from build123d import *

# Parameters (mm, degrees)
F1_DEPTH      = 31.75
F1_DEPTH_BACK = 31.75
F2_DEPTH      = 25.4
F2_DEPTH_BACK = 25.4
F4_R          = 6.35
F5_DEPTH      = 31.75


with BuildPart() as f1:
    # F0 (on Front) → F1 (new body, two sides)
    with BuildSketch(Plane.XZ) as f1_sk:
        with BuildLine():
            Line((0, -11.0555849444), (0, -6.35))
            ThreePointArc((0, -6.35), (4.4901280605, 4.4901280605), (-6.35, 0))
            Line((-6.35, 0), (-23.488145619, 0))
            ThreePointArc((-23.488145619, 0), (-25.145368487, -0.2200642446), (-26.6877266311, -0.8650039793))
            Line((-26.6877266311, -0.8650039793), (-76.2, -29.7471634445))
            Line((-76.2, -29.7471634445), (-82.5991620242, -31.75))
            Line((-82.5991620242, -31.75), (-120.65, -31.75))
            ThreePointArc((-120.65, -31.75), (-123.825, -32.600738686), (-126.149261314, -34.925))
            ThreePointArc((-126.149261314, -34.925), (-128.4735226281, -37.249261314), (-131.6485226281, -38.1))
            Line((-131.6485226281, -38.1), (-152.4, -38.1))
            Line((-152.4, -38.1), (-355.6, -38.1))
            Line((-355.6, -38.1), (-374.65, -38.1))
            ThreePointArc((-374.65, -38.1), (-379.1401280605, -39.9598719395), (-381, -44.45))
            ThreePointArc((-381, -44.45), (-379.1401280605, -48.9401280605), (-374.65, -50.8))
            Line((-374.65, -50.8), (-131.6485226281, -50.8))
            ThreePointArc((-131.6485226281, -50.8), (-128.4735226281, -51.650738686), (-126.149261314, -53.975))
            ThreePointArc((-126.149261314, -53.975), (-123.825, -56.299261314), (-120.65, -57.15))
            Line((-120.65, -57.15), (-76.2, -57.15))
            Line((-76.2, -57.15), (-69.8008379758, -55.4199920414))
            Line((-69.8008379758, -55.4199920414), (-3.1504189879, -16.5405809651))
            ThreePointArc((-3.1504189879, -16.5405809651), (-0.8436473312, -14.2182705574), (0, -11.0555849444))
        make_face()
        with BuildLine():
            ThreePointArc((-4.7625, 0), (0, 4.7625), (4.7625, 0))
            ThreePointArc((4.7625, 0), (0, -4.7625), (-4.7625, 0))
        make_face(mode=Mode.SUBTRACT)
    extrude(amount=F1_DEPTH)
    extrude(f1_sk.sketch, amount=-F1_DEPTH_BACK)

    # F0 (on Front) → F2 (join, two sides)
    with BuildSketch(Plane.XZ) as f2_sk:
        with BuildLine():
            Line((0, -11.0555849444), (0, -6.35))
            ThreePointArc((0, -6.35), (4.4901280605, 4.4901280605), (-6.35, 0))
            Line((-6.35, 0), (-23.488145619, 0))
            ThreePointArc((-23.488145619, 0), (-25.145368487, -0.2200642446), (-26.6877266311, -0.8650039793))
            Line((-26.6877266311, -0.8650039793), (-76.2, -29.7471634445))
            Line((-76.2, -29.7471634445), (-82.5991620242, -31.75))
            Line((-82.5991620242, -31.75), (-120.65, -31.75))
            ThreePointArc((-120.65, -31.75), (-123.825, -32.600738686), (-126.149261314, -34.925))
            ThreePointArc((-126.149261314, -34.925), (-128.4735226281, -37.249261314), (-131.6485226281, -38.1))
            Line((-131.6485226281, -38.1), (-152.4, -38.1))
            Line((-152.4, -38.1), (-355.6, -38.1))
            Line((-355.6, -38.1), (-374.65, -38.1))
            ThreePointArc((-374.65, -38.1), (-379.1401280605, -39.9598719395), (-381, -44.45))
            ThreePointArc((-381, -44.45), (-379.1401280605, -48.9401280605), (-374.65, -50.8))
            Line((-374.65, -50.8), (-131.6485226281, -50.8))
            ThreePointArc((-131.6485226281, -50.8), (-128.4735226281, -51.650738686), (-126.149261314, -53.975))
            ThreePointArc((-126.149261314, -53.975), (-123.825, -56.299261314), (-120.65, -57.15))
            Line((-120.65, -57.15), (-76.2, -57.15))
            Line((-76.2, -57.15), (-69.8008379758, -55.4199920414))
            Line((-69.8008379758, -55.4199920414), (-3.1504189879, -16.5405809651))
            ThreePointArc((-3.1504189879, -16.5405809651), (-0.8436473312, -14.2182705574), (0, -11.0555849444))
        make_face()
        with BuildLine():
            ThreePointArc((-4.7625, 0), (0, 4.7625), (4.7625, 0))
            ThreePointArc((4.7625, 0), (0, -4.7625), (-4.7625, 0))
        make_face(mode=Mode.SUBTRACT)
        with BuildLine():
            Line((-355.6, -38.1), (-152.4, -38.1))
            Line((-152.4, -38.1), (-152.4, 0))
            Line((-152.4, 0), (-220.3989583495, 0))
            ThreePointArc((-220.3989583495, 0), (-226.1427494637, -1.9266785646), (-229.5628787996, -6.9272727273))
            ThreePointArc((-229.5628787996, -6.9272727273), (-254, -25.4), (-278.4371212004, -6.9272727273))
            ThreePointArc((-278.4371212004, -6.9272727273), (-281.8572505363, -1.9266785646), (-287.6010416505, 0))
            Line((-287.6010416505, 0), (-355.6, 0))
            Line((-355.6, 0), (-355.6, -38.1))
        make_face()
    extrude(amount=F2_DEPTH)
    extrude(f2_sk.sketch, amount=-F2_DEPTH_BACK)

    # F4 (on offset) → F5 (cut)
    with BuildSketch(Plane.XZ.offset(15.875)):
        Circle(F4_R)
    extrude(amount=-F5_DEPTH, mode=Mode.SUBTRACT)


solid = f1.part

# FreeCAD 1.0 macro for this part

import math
import FreeCAD as App
import Part
import Sketcher

V = App.Vector
Q = App.Units.Quantity

doc = App.newDocument("Part")
params = doc.addObject("Spreadsheet::Sheet", "Params")
for row, (alias, value) in enumerate([
    ("sketch1_radius", "0.25 in"),
    ("sketch1_diameter", "0.375 in"),
    ("pad1_length", "1.25 in"),
    ("pad1_length2", "1.25 in"),
    ("sketch2_radius", "1 in"),
    ("sketch2_radius2", "0.25 in"),
    ("sketch2_diameter", "0.375 in"),
    ("sketch2_height", "1.5 in"),
    ("sketch2_radius3", "0.375 in"),
    ("pad2_length", "1 in"),
    ("pad2_length2", "1 in"),
    ("sketch3_diameter", "0.5 in"),
    ("pocket1_length", "1.25 in"),
], start=1):
    params.set(f"A{row}", alias)
    params.set(f"B{row}", "=" + value)
    params.setAlias(f"B{row}", alias)

body = doc.addObject("PartDesign::Body", "Body")

sketch1 = body.newObject("Sketcher::SketchObject", "Sketch")
sketch1.AttachmentSupport = (doc.getObject("XZ_Plane"), [""])
sketch1.MapMode = "FlatFace"
sketch1.addGeometry(Part.LineSegment(V(0, -11.1, 0), V(0, -6.3, 0)), False)
sketch1.addGeometry(Part.ArcOfCircle(Part.Circle(V(0, 0, 0), V(0, 0, 1), 6.3), math.radians(-90), math.radians(180)), False)
sketch1.addGeometry(Part.LineSegment(V(-6.3, 0, 0), V(-23.5, 0, 0)), False)
sketch1.addGeometry(Part.ArcOfCircle(Part.Circle(V(-23.5, -6.4, 0), V(0, 0, 1), 6.4), math.radians(90), math.radians(120)), False)
sketch1.addGeometry(Part.LineSegment(V(-26.7, -0.9, 0), V(-76.2, -29.7, 0)), False)
sketch1.addGeometry(Part.LineSegment(V(-76.2, -29.7, 0), V(-82.6, -31.8, 0)), False)
sketch1.addGeometry(Part.LineSegment(V(-82.6, -31.8, 0), V(-120.7, -31.8, 0)), False)
sketch1.addGeometry(Part.ArcOfCircle(Part.Circle(V(-120.7, -38.1, 0), V(0, 0, 1), 6.3), math.radians(90), math.radians(150)), False)
sketch1.addGeometry(Part.ArcOfCircle(Part.Circle(V(-131.6, -31.8, 0), V(0, 0, 1), 6.3), math.radians(-90), math.radians(-30)), False)
sketch1.addGeometry(Part.LineSegment(V(-131.6, -38.1, 0), V(-374.6, -38.1, 0)), False)
sketch1.addGeometry(Part.ArcOfCircle(Part.Circle(V(-374.6, -44.5, 0), V(0, 0, 1), 6.3), math.radians(90), math.radians(180)), False)
sketch1.addGeometry(Part.ArcOfCircle(Part.Circle(V(-374.6, -44.5, 0), V(0, 0, 1), 6.3), math.radians(180), math.radians(270)), False)
sketch1.addGeometry(Part.LineSegment(V(-374.6, -50.8, 0), V(-131.6, -50.8, 0)), False)
sketch1.addGeometry(Part.ArcOfCircle(Part.Circle(V(-131.6, -57.1, 0), V(0, 0, 1), 6.3), math.radians(30), math.radians(90)), False)
sketch1.addGeometry(Part.ArcOfCircle(Part.Circle(V(-120.7, -50.8, 0), V(0, 0, 1), 6.3), math.radians(-150), math.radians(-90)), False)
sketch1.addGeometry(Part.LineSegment(V(-120.7, -57.1, 0), V(-76.2, -57.1, 0)), False)
sketch1.addGeometry(Part.LineSegment(V(-76.2, -57.1, 0), V(-69.8, -55.4, 0)), False)
sketch1.addGeometry(Part.LineSegment(V(-69.8, -55.4, 0), V(-3.2, -16.5, 0)), False)
sketch1.addGeometry(Part.ArcOfCircle(Part.Circle(V(-6.3, -11.1, 0), V(0, 0, 1), 6.3), math.radians(-60), math.radians(0)), False)
sketch1.addGeometry(Part.Circle(V(0, 0, 0), V(0, 0, 1), 4.8), False)
sketch1.addConstraint(Sketcher.Constraint("Coincident", 0, 2, 1, 1))
sketch1.addConstraint(Sketcher.Constraint("Coincident", 1, 2, 2, 1))
sketch1.addConstraint(Sketcher.Constraint("Tangent", 2, 2, 3, 1))
sketch1.addConstraint(Sketcher.Constraint("Tangent", 3, 2, 4, 1))
sketch1.addConstraint(Sketcher.Constraint("Coincident", 4, 2, 5, 1))
sketch1.addConstraint(Sketcher.Constraint("Coincident", 5, 2, 6, 1))
sketch1.addConstraint(Sketcher.Constraint("Tangent", 6, 2, 7, 1))
sketch1.addConstraint(Sketcher.Constraint("Tangent", 7, 2, 8, 2))
sketch1.addConstraint(Sketcher.Constraint("Tangent", 8, 1, 9, 1))
sketch1.addConstraint(Sketcher.Constraint("Tangent", 9, 2, 10, 1))
sketch1.addConstraint(Sketcher.Constraint("Tangent", 10, 2, 11, 1))
sketch1.addConstraint(Sketcher.Constraint("Tangent", 11, 2, 12, 1))
sketch1.addConstraint(Sketcher.Constraint("Tangent", 12, 2, 13, 2))
sketch1.addConstraint(Sketcher.Constraint("Tangent", 13, 1, 14, 1))
sketch1.addConstraint(Sketcher.Constraint("Tangent", 14, 2, 15, 1))
sketch1.addConstraint(Sketcher.Constraint("Coincident", 15, 2, 16, 1))
sketch1.addConstraint(Sketcher.Constraint("Coincident", 16, 2, 17, 1))
sketch1.addConstraint(Sketcher.Constraint("Tangent", 17, 2, 18, 1))
sketch1.addConstraint(Sketcher.Constraint("Tangent", 18, 2, 0, 1))
sketch1.addConstraint(Sketcher.Constraint("Vertical", 0))
sketch1.addConstraint(Sketcher.Constraint("Horizontal", 2))
sketch1.addConstraint(Sketcher.Constraint("Horizontal", 6))
sketch1.addConstraint(Sketcher.Constraint("Horizontal", 9))
sketch1.addConstraint(Sketcher.Constraint("Horizontal", 12))
sketch1.addConstraint(Sketcher.Constraint("Horizontal", 15))
sketch1.addConstraint(Sketcher.Constraint("Coincident", 1, 3, -1, 1))
sketch1.addConstraint(Sketcher.Constraint("Coincident", 19, 3, -1, 1))
sketch1.addConstraint(Sketcher.Constraint("Equal", 1, 3))
sketch1.addConstraint(Sketcher.Constraint("Equal", 3, 7))
sketch1.addConstraint(Sketcher.Constraint("Equal", 7, 8))
sketch1.addConstraint(Sketcher.Constraint("Equal", 8, 10))
sketch1.addConstraint(Sketcher.Constraint("Equal", 10, 11))
sketch1.addConstraint(Sketcher.Constraint("Equal", 11, 13))
sketch1.addConstraint(Sketcher.Constraint("Equal", 13, 14))
sketch1.addConstraint(Sketcher.Constraint("Equal", 14, 18))
sketch1.addConstraint(Sketcher.Constraint("PointOnObject", 0, 2, -2))
sketch1.addConstraint(Sketcher.Constraint("PointOnObject", 1, 2, -1))
sketch1.addConstraint(Sketcher.Constraint("Parallel", 4, 17))
sketch1.addConstraint(Sketcher.Constraint("Horizontal", 8, 3, 5, 2))
sketch1.addConstraint(Sketcher.Constraint("Horizontal", 11, 3, 10, 2))
sketch1.addConstraint(Sketcher.Constraint("Horizontal", 14, 3, 11, 2))
sketch1.addConstraint(Sketcher.Constraint("Vertical", 8, 3, 13, 3))
sketch1.addConstraint(Sketcher.Constraint("Vertical", 4, 2, 15, 2))
sketch1.addConstraint(Sketcher.Constraint("Radius", 1, Q("0.25 in")))
sketch1.addConstraint(Sketcher.Constraint("Diameter", 19, Q("0.375 in")))
sketch1.addConstraint(Sketcher.Constraint("DistanceY", 14, 3, -1, 1, Q("2 in")))
sketch1.addConstraint(Sketcher.Constraint("DistanceX", 4, 2, -1, 1, Q("3 in")))
sketch1.addConstraint(Sketcher.Constraint("DistanceX", 10, 2, -1, 1, Q("15 in")))
sketch1.addConstraint(Sketcher.Constraint("DistanceX", 10, 3, 7, 3, Q("10 in")))
sketch1.addConstraint(Sketcher.Constraint("Distance", 4, Q("57.32054 mm")))
sketch1.addConstraint(Sketcher.Constraint("Distance", 5, Q("6.705269 mm")))
sketch1.addConstraint(Sketcher.Constraint("Distance", 16, Q("6.628891 mm")))
sketch1.addConstraint(Sketcher.Constraint("DistanceX", 2, 2, 2, 1, Q("17.138146 mm")))
sketch1.addConstraint(Sketcher.Constraint("DistanceY", 0, 1, 0, 2, Q("4.705585 mm")))
sketch1.setExpression("Constraints[43]", "Params.sketch1_radius")
sketch1.setExpression("Constraints[44]", "Params.sketch1_diameter")
pad1 = body.newObject("PartDesign::Pad", "Pad")
pad1.Profile = sketch1
pad1.Type = "TwoLengths"
pad1.setExpression("Length", "Params.pad1_length")
pad1.setExpression("Length2", "Params.pad1_length2")

sketch2 = body.newObject("Sketcher::SketchObject", "Sketch001")
sketch2.AttachmentSupport = (doc.getObject("XZ_Plane"), [""])
sketch2.MapMode = "FlatFace"
sketch2.addGeometry(Part.LineSegment(V(0, -11.1, 0), V(0, -6.3, 0)), False)
sketch2.addGeometry(Part.ArcOfCircle(Part.Circle(V(0, 0, 0), V(0, 0, 1), 6.3), math.radians(-90), math.radians(180)), False)
sketch2.addGeometry(Part.LineSegment(V(-6.3, 0, 0), V(-23.5, 0, 0)), False)
sketch2.addGeometry(Part.ArcOfCircle(Part.Circle(V(-23.5, -6.4, 0), V(0, 0, 1), 6.4), math.radians(90), math.radians(120)), False)
sketch2.addGeometry(Part.LineSegment(V(-26.7, -0.9, 0), V(-76.2, -29.7, 0)), False)
sketch2.addGeometry(Part.LineSegment(V(-76.2, -29.7, 0), V(-82.6, -31.8, 0)), False)
sketch2.addGeometry(Part.LineSegment(V(-82.6, -31.8, 0), V(-120.7, -31.8, 0)), False)
sketch2.addGeometry(Part.ArcOfCircle(Part.Circle(V(-120.7, -38.1, 0), V(0, 0, 1), 6.3), math.radians(90), math.radians(150)), False)
sketch2.addGeometry(Part.ArcOfCircle(Part.Circle(V(-131.6, -31.8, 0), V(0, 0, 1), 6.3), math.radians(-90), math.radians(-30)), False)
sketch2.addGeometry(Part.LineSegment(V(-131.6, -38.1, 0), V(-152.4, -38.1, 0)), False)
sketch2.addGeometry(Part.LineSegment(V(-152.4, -38.1, 0), V(-152.4, 0, 0)), False)
sketch2.addGeometry(Part.LineSegment(V(-152.4, 0, 0), V(-220.4, 0, 0)), False)
sketch2.addGeometry(Part.ArcOfCircle(Part.Circle(V(-220.4, -9.5, 0), V(0, 0, 1), 9.5), math.radians(90), math.radians(164)), False)
sketch2.addGeometry(Part.ArcOfCircle(Part.Circle(V(-254, 0, 0), V(0, 0, 1), 25.4), math.radians(-164), math.radians(-16)), False)
sketch2.addGeometry(Part.ArcOfCircle(Part.Circle(V(-287.6, -9.5, 0), V(0, 0, 1), 9.5), math.radians(16), math.radians(90)), False)
sketch2.addGeometry(Part.LineSegment(V(-287.6, 0, 0), V(-355.6, 0, 0)), False)
sketch2.addGeometry(Part.LineSegment(V(-355.6, 0, 0), V(-355.6, -38.1, 0)), False)
sketch2.addGeometry(Part.LineSegment(V(-355.6, -38.1, 0), V(-374.6, -38.1, 0)), False)
sketch2.addGeometry(Part.ArcOfCircle(Part.Circle(V(-374.6, -44.5, 0), V(0, 0, 1), 6.3), math.radians(90), math.radians(180)), False)
sketch2.addGeometry(Part.ArcOfCircle(Part.Circle(V(-374.6, -44.5, 0), V(0, 0, 1), 6.3), math.radians(180), math.radians(270)), False)
sketch2.addGeometry(Part.LineSegment(V(-374.6, -50.8, 0), V(-131.6, -50.8, 0)), False)
sketch2.addGeometry(Part.ArcOfCircle(Part.Circle(V(-131.6, -57.1, 0), V(0, 0, 1), 6.3), math.radians(30), math.radians(90)), False)
sketch2.addGeometry(Part.ArcOfCircle(Part.Circle(V(-120.7, -50.8, 0), V(0, 0, 1), 6.3), math.radians(-150), math.radians(-90)), False)
sketch2.addGeometry(Part.LineSegment(V(-120.7, -57.1, 0), V(-76.2, -57.1, 0)), False)
sketch2.addGeometry(Part.LineSegment(V(-76.2, -57.1, 0), V(-69.8, -55.4, 0)), False)
sketch2.addGeometry(Part.LineSegment(V(-69.8, -55.4, 0), V(-3.2, -16.5, 0)), False)
sketch2.addGeometry(Part.ArcOfCircle(Part.Circle(V(-6.3, -11.1, 0), V(0, 0, 1), 6.3), math.radians(-60), math.radians(0)), False)
sketch2.addGeometry(Part.Circle(V(0, 0, 0), V(0, 0, 1), 4.8), False)
sketch2.addConstraint(Sketcher.Constraint("Coincident", 0, 2, 1, 1))
sketch2.addConstraint(Sketcher.Constraint("Coincident", 1, 2, 2, 1))
sketch2.addConstraint(Sketcher.Constraint("Tangent", 2, 2, 3, 1))
sketch2.addConstraint(Sketcher.Constraint("Tangent", 3, 2, 4, 1))
sketch2.addConstraint(Sketcher.Constraint("Coincident", 4, 2, 5, 1))
sketch2.addConstraint(Sketcher.Constraint("Coincident", 5, 2, 6, 1))
sketch2.addConstraint(Sketcher.Constraint("Tangent", 6, 2, 7, 1))
sketch2.addConstraint(Sketcher.Constraint("Tangent", 7, 2, 8, 2))
sketch2.addConstraint(Sketcher.Constraint("Tangent", 8, 1, 9, 1))
sketch2.addConstraint(Sketcher.Constraint("Coincident", 9, 2, 10, 1))
sketch2.addConstraint(Sketcher.Constraint("Coincident", 10, 2, 11, 1))
sketch2.addConstraint(Sketcher.Constraint("Tangent", 11, 2, 12, 1))
sketch2.addConstraint(Sketcher.Constraint("Tangent", 12, 2, 13, 2))
sketch2.addConstraint(Sketcher.Constraint("Tangent", 13, 1, 14, 1))
sketch2.addConstraint(Sketcher.Constraint("Tangent", 14, 2, 15, 1))
sketch2.addConstraint(Sketcher.Constraint("Coincident", 15, 2, 16, 1))
sketch2.addConstraint(Sketcher.Constraint("Coincident", 16, 2, 17, 1))
sketch2.addConstraint(Sketcher.Constraint("Tangent", 17, 2, 18, 1))
sketch2.addConstraint(Sketcher.Constraint("Tangent", 18, 2, 19, 1))
sketch2.addConstraint(Sketcher.Constraint("Tangent", 19, 2, 20, 1))
sketch2.addConstraint(Sketcher.Constraint("Tangent", 20, 2, 21, 2))
sketch2.addConstraint(Sketcher.Constraint("Tangent", 21, 1, 22, 1))
sketch2.addConstraint(Sketcher.Constraint("Tangent", 22, 2, 23, 1))
sketch2.addConstraint(Sketcher.Constraint("Coincident", 23, 2, 24, 1))
sketch2.addConstraint(Sketcher.Constraint("Coincident", 24, 2, 25, 1))
sketch2.addConstraint(Sketcher.Constraint("Tangent", 25, 2, 26, 1))
sketch2.addConstraint(Sketcher.Constraint("Tangent", 26, 2, 0, 1))
sketch2.addConstraint(Sketcher.Constraint("Vertical", 0))
sketch2.addConstraint(Sketcher.Constraint("Horizontal", 2))
sketch2.addConstraint(Sketcher.Constraint("Horizontal", 6))
sketch2.addConstraint(Sketcher.Constraint("Horizontal", 9))
sketch2.addConstraint(Sketcher.Constraint("Vertical", 10))
sketch2.addConstraint(Sketcher.Constraint("Horizontal", 11))
sketch2.addConstraint(Sketcher.Constraint("Horizontal", 15))
sketch2.addConstraint(Sketcher.Constraint("Vertical", 16))
sketch2.addConstraint(Sketcher.Constraint("Horizontal", 17))
sketch2.addConstraint(Sketcher.Constraint("Horizontal", 20))
sketch2.addConstraint(Sketcher.Constraint("Horizontal", 23))
sketch2.addConstraint(Sketcher.Constraint("Coincident", 1, 3, -1, 1))
sketch2.addConstraint(Sketcher.Constraint("Coincident", 27, 3, -1, 1))
sketch2.addConstraint(Sketcher.Constraint("Equal", 1, 3))
sketch2.addConstraint(Sketcher.Constraint("Equal", 3, 7))
sketch2.addConstraint(Sketcher.Constraint("Equal", 7, 8))
sketch2.addConstraint(Sketcher.Constraint("Equal", 12, 14))
sketch2.addConstraint(Sketcher.Constraint("Equal", 8, 18))
sketch2.addConstraint(Sketcher.Constraint("Equal", 18, 19))
sketch2.addConstraint(Sketcher.Constraint("Equal", 19, 21))
sketch2.addConstraint(Sketcher.Constraint("Equal", 21, 22))
sketch2.addConstraint(Sketcher.Constraint("Equal", 22, 26))
sketch2.addConstraint(Sketcher.Constraint("PointOnObject", 13, 3, -1))
sketch2.addConstraint(Sketcher.Constraint("PointOnObject", 0, 2, -2))
sketch2.addConstraint(Sketcher.Constraint("PointOnObject", 1, 2, -1))
sketch2.addConstraint(Sketcher.Constraint("PointOnObject", 10, 2, -1))
sketch2.addConstraint(Sketcher.Constraint("PointOnObject", 14, 2, -1))
sketch2.addConstraint(Sketcher.Constraint("Parallel", 4, 25))
sketch2.addConstraint(Sketcher.Constraint("Horizontal", 8, 3, 5, 2))
sketch2.addConstraint(Sketcher.Constraint("Horizontal", 9, 2, 16, 2))
sketch2.addConstraint(Sketcher.Constraint("Horizontal", 19, 3, 18, 2))
sketch2.addConstraint(Sketcher.Constraint("Horizontal", 22, 3, 19, 2))
sketch2.addConstraint(Sketcher.Constraint("Vertical", 8, 3, 21, 3))
sketch2.addConstraint(Sketcher.Constraint("Vertical", 4, 2, 23, 2))
sketch2.addConstraint(Sketcher.Constraint("Equal", 11, 15))
sketch2.addConstraint(Sketcher.Constraint("Radius", 13, Q("1 in")))
sketch2.addConstraint(Sketcher.Constraint("Radius", 1, Q("0.25 in")))
sketch2.addConstraint(Sketcher.Constraint("Diameter", 27, Q("0.375 in")))
sketch2.addConstraint(Sketcher.Constraint("DistanceY", 10, 1, 10, 2, Q("1.5 in")))
sketch2.addConstraint(Sketcher.Constraint("DistanceX", 13, 3, -1, 1, Q("10 in")))
sketch2.addConstraint(Sketcher.Constraint("DistanceX", 4, 2, -1, 1, Q("3 in")))
sketch2.addConstraint(Sketcher.Constraint("DistanceX", 9, 2, -1, 1, Q("6 in")))
sketch2.addConstraint(Sketcher.Constraint("DistanceX", 18, 2, -1, 1, Q("15 in")))
sketch2.addConstraint(Sketcher.Constraint("Radius", 12, Q("0.375 in")))
sketch2.addConstraint(Sketcher.Constraint("DistanceX", 18, 3, 7, 3, Q("10 in")))
sketch2.addConstraint(Sketcher.Constraint("Distance", 4, Q("57.32054 mm")))
sketch2.addConstraint(Sketcher.Constraint("Distance", 5, Q("6.705269 mm")))
sketch2.addConstraint(Sketcher.Constraint("Distance", 24, Q("6.628891 mm")))
sketch2.addConstraint(Sketcher.Constraint("DistanceX", 2, 2, 2, 1, Q("17.138146 mm")))
sketch2.addConstraint(Sketcher.Constraint("DistanceY", 0, 1, 0, 2, Q("4.705585 mm")))
sketch2.setExpression("Constraints[62]", "Params.sketch2_radius")
sketch2.setExpression("Constraints[63]", "Params.sketch2_radius2")
sketch2.setExpression("Constraints[64]", "Params.sketch2_diameter")
sketch2.setExpression("Constraints[65]", "Params.sketch2_height")
sketch2.setExpression("Constraints[70]", "Params.sketch2_radius3")
pad2 = body.newObject("PartDesign::Pad", "Pad001")
pad2.Profile = sketch2
pad2.Type = "TwoLengths"
pad2.setExpression("Length", "Params.pad2_length")
pad2.setExpression("Length2", "Params.pad2_length2")

sketch3 = body.newObject("Sketcher::SketchObject", "Sketch002")
sketch3.AttachmentSupport = (doc.getObject("XZ_Plane"), [""])
sketch3.MapMode = "FlatFace"
sketch3.AttachmentOffset = App.Placement(V(0, 0, 0.625 * 25.4), App.Rotation())
sketch3.addGeometry(Part.Circle(V(0, 0, 0), V(0, 0, 1), 6), False)
sketch3.addConstraint(Sketcher.Constraint("Coincident", 0, 3, -1, 1))
sketch3.addConstraint(Sketcher.Constraint("Diameter", 0, Q("0.5 in")))
sketch3.setExpression("Constraints[1]", "Params.sketch3_diameter")
pocket1 = body.newObject("PartDesign::Pocket", "Pocket")
pocket1.Profile = sketch3
pocket1.setExpression("Length", "Params.pocket1_length")

doc.recompute()
